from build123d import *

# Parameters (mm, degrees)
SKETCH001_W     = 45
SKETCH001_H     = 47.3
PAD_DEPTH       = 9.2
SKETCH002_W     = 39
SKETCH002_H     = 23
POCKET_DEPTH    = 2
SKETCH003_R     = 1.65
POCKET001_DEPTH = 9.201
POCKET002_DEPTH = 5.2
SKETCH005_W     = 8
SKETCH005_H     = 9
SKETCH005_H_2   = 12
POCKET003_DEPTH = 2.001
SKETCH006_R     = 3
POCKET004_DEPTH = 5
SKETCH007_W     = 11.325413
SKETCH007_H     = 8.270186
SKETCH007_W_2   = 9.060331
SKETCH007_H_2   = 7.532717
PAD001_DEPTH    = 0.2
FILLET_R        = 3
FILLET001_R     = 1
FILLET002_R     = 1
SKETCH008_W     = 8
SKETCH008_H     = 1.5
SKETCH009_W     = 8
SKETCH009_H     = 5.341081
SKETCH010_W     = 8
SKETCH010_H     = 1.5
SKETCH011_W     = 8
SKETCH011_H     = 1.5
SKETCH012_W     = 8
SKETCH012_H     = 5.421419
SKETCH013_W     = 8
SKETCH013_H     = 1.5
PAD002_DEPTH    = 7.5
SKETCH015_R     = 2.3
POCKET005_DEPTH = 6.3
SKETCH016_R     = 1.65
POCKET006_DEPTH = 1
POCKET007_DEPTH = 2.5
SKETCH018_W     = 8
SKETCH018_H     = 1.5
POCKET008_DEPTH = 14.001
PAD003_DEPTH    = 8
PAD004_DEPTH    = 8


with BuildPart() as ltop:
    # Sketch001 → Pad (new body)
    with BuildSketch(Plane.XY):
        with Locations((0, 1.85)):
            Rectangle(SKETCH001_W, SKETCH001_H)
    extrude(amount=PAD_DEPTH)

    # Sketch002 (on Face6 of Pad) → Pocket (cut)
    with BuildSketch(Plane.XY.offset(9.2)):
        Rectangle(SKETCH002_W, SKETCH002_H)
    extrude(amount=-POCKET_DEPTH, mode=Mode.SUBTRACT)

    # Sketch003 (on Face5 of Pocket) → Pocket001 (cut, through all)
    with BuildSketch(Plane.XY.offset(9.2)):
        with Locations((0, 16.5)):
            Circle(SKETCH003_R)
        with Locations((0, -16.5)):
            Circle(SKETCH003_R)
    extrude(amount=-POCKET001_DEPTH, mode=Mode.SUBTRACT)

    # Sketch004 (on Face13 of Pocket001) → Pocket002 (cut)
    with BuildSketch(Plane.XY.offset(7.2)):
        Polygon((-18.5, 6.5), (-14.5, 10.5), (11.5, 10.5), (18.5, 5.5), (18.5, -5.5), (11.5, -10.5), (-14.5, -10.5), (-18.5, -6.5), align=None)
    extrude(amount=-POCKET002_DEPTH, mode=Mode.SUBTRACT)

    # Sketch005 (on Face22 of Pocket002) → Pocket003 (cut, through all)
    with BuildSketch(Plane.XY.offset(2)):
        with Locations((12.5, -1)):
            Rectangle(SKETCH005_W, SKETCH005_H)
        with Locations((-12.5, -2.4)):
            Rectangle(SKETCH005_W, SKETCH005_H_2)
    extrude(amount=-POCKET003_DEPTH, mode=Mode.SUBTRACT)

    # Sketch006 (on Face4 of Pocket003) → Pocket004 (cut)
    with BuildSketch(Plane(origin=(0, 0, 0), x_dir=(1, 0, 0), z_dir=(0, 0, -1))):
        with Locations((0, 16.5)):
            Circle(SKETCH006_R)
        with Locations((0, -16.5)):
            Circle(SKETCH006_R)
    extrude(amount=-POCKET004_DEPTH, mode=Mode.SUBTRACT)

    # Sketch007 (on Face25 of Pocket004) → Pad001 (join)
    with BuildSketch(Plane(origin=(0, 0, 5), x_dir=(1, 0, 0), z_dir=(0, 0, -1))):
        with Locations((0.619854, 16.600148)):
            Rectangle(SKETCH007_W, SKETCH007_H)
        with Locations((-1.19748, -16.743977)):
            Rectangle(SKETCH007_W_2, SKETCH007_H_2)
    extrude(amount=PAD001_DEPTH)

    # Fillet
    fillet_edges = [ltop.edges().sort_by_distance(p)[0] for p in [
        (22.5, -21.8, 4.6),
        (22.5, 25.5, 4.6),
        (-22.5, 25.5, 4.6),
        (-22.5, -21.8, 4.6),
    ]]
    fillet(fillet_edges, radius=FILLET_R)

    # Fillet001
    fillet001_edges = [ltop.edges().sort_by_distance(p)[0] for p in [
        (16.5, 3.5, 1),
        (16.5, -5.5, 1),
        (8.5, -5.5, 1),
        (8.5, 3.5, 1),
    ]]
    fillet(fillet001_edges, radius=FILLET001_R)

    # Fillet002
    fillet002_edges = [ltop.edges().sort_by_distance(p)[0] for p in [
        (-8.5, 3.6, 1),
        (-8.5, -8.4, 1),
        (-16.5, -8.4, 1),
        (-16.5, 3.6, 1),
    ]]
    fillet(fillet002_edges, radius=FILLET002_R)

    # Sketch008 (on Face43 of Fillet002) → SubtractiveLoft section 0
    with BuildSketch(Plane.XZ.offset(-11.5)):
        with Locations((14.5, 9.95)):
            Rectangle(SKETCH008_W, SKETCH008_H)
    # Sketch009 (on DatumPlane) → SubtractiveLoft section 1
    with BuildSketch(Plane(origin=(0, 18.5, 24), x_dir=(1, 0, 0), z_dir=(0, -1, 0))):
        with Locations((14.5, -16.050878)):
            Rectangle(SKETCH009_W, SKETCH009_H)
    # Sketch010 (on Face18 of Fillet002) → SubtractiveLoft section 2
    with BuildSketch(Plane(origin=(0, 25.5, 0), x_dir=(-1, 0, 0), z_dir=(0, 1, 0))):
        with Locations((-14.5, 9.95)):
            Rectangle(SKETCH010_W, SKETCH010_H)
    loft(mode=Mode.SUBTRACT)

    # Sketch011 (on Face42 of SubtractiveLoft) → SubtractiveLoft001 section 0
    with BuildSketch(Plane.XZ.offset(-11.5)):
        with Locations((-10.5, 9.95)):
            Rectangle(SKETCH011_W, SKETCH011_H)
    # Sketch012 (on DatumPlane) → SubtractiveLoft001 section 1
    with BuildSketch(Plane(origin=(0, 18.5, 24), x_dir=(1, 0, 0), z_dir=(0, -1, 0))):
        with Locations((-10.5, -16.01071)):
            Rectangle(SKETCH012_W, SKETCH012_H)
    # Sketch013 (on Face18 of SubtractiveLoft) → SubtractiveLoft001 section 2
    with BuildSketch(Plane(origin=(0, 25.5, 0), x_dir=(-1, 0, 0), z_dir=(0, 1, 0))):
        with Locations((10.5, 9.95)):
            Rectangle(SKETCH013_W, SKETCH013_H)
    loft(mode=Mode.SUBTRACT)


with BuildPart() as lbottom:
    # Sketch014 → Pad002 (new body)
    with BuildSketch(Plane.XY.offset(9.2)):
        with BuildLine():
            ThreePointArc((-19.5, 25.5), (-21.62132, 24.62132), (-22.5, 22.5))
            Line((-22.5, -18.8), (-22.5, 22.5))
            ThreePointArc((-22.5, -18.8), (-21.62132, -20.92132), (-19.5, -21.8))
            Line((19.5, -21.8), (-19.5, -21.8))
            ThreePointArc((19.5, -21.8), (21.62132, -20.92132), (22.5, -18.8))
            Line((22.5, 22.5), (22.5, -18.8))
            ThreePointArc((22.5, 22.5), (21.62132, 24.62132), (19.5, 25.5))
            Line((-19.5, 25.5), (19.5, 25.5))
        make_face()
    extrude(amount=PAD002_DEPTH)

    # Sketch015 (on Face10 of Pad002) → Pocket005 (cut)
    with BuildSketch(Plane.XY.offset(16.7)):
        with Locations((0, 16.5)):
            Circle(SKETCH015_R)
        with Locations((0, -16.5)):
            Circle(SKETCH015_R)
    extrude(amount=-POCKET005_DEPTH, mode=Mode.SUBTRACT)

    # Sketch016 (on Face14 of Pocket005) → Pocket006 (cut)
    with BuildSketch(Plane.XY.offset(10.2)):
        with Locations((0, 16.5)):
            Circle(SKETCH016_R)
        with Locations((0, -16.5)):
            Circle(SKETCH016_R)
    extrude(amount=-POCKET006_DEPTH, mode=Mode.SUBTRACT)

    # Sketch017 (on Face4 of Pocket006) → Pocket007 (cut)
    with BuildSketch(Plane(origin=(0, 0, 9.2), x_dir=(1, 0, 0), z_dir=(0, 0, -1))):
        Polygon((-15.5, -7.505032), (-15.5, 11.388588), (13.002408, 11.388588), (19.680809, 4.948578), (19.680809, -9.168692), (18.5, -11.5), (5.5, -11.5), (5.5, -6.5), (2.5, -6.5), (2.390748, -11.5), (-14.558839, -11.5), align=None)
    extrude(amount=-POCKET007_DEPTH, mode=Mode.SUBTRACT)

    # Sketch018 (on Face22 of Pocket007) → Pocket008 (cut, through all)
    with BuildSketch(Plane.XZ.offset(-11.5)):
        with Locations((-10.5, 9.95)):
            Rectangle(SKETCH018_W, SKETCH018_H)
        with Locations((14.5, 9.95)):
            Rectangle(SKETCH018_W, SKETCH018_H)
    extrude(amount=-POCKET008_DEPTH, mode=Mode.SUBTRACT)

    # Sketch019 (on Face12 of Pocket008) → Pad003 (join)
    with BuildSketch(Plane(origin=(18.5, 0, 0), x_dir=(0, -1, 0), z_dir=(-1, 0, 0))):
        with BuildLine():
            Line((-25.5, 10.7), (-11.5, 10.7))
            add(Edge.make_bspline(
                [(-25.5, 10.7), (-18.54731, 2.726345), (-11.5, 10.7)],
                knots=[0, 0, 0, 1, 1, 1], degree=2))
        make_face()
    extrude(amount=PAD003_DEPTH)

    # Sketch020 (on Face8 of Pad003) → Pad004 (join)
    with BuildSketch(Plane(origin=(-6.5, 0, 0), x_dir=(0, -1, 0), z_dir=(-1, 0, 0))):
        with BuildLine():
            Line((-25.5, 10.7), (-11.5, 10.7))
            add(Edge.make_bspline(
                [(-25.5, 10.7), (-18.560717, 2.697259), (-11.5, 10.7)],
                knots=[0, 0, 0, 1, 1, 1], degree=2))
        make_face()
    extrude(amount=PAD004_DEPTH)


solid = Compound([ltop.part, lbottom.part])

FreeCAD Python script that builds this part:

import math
import FreeCAD as App
import Part
import Sketcher


def edges_at(feature, points):
    """Names of the edges that pass closest to the given points."""
    edges = feature.Shape.Edges
    near = lambda p: min(range(len(edges)), key=lambda i: edges[i].distToShape(Part.Vertex(*p))[0])
    return sorted({f"Edge{near(p) + 1}" for p in points})


def add_polygon(sketch, points):
    """Adds a closed chain of lines whose ends are joined by coincident constraints."""
    first, n = sketch.GeometryCount, len(points)
    for a, b in zip(points, points[1:] + points[:1]):
        sketch.addGeometry(Part.LineSegment(App.Vector(*a, 0), App.Vector(*b, 0)), False)
    for i in range(n):
        sketch.addConstraint(Sketcher.Constraint("Coincident", first + i, 2, first + (i + 1) % n, 1))

doc = App.newDocument("Part")
params = doc.addObject("Spreadsheet::Sheet", "Params")
for row, (alias, value) in enumerate([
    ("sketch1_width", "45 mm"),
    ("sketch1_height", "47.3 mm"),
    ("pad1_length", "9.2 mm"),
    ("sketch2_width", "39 mm"),
    ("sketch2_height", "23 mm"),
    ("pocket1_length", "2 mm"),
    ("sketch3_diameter", "3.3 mm"),
    ("sketch4_width", "26 mm"),
    ("sketch4_height", "13 mm"),
    ("sketch4_height2", "11 mm"),
    ("pocket3_length", "5.2 mm"),
    ("sketch5_width", "8 mm"),
    ("sketch5_height", "9 mm"),
    ("sketch5_height2", "12 mm"),
    ("sketch6_diameter", "6 mm"),
    ("pocket5_length", "5 mm"),
    ("pad2_length", "0.2 mm"),
    ("fillet_radius", "3 mm"),
    ("fillet2_radius", "1 mm"),
    ("fillet3_radius", "1 mm"),
    ("sketch8_width", "8 mm"),
    ("sketch8_height", "1.5 mm"),
    ("sketch9_width", "8 mm"),
    ("sketch10_width", "8 mm"),
    ("sketch10_height", "1.5 mm"),
    ("sketch11_width", "8 mm"),
    ("sketch11_height", "1.5 mm"),
    ("sketch12_width", "8 mm"),
    ("sketch13_width", "8 mm"),
    ("sketch13_height", "1.5 mm"),
    ("sketch14_radius", "3.000001 mm"),
    ("sketch14_width", "39 mm"),
    ("sketch14_height", "41.3 mm"),
    ("pad3_length", "7.5 mm"),
    ("sketch15_diameter", "4.6 mm"),
    ("pocket6_length", "6.3 mm"),
    ("sketch16_diameter", "3.3 mm"),
    ("pocket7_length", "1 mm"),
    ("sketch17_width", "3 mm"),
    ("sketch17_width2", "13 mm"),
    ("sketch17_height", "5 mm"),
    ("pocket8_length", "2.5 mm"),
    ("sketch18_width", "8 mm"),
    ("sketch18_height", "1.5 mm"),
    ("pad4_length", "8 mm"),
    ("pad5_length", "8 mm"),
], start=1):
    params.set(f"A{row}", alias)
    params.set(f"B{row}", "=" + value)
    params.setAlias(f"B{row}", alias)

body = doc.addObject("PartDesign::Body", "Body")

sketch1 = body.newObject("Sketcher::SketchObject", "Sketch")
sketch1.AttachmentSupport = (doc.getObject("XY_Plane"), [""])
sketch1.MapMode = "FlatFace"
add_polygon(sketch1, [(-22, 26), (-22, -22), (22, -22), (22, 26)])
sketch1.addConstraint([
    Sketcher.Constraint("Vertical", 0),
    Sketcher.Constraint("Horizontal", 1),
    Sketcher.Constraint("Vertical", 2),
    Sketcher.Constraint("Horizontal", 3),
    Sketcher.Constraint("DistanceX", 1, 1, 1, 2, 45.0),
    Sketcher.Constraint("DistanceY", 0, 2, 0, 1, 47.3),
    Sketcher.Constraint("DistanceX", 0, 2, -1, 1, 22.5),
    Sketcher.Constraint("DistanceY", 0, 2, -1, 1, 21.8),
])
sketch1.setExpression("Constraints[8]", "Params.sketch1_width")
sketch1.setExpression("Constraints[9]", "Params.sketch1_height")
pad1 = body.newObject("PartDesign::Pad", "Pad")
pad1.Profile = sketch1
pad1.setExpression("Length", "Params.pad1_length")

sketch2 = body.newObject("Sketcher::SketchObject", "Sketch001")
sketch2.AttachmentSupport = (doc.getObject("XY_Plane"), [""])
sketch2.MapMode = "FlatFace"
sketch2.AttachmentOffset = App.Placement(App.Vector(0, 0, 9.2), App.Rotation())
add_polygon(sketch2, [(-20, 12), (-20, -12), (20, -12), (20, 12)])
sketch2.addConstraint([
    Sketcher.Constraint("Vertical", 0),
    Sketcher.Constraint("Horizontal", 1),
    Sketcher.Constraint("Vertical", 2),
    Sketcher.Constraint("Horizontal", 3),
    Sketcher.Constraint("Symmetric", 0, 2, 2, 2, -1, 1),
    Sketcher.Constraint("DistanceX", 1, 1, 1, 2, 39.0),
    Sketcher.Constraint("DistanceY", 0, 2, 0, 1, 23.0),
])
sketch2.setExpression("Constraints[9]", "Params.sketch2_width")
sketch2.setExpression("Constraints[10]", "Params.sketch2_height")
pocket1 = body.newObject("PartDesign::Pocket", "Pocket")
pocket1.Profile = sketch2
pocket1.setExpression("Length", "Params.pocket1_length")

sketch3 = body.newObject("Sketcher::SketchObject", "Sketch002")
sketch3.AttachmentSupport = (doc.getObject("XY_Plane"), [""])
sketch3.MapMode = "FlatFace"
sketch3.AttachmentOffset = App.Placement(App.Vector(0, 0, 9.2), App.Rotation())
sketch3.addGeometry([
    Part.Circle(App.Vector(0, 16.5, 0), App.Vector(0, 0, 1), 1.6),
    Part.Circle(App.Vector(0, -16.5, 0), App.Vector(0, 0, 1), 1.6),
], False)
sketch3.addConstraint([
    Sketcher.Constraint("Equal", 0, 1),
    Sketcher.Constraint("Symmetric", 0, 3, 1, 3, -1, 1),
    Sketcher.Constraint("PointOnObject", 0, 3, -2),
    Sketcher.Constraint("Diameter", 0, 3.3),
    Sketcher.Constraint("DistanceY", 1, 3, 0, 3, 33.0),
])
sketch3.setExpression("Constraints[3]", "Params.sketch3_diameter")
pocket2 = body.newObject("PartDesign::Pocket", "Pocket001")
pocket2.Profile = sketch3
pocket2.Type = "ThroughAll"

sketch4 = body.newObject("Sketcher::SketchObject", "Sketch003")
sketch4.AttachmentSupport = (doc.getObject("XY_Plane"), [""])
sketch4.MapMode = "FlatFace"
sketch4.AttachmentOffset = App.Placement(App.Vector(0, 0, 7.2), App.Rotation())
add_polygon(sketch4, [(-14, 10), (-18, 6), (-18, -6), (-14, -10), (12, -10), (18, -6), (18, 6), (12, 10)])
sketch4.addConstraint([
    Sketcher.Constraint("Vertical", 1),
    Sketcher.Constraint("Horizontal", 3),
    Sketcher.Constraint("Vertical", 5),
    Sketcher.Constraint("Horizontal", 7),
    Sketcher.Constraint("Symmetric", 3, 2, 6, 2, -1),
    Sketcher.Constraint("Perpendicular", 0, 2),
    Sketcher.Constraint("Vertical", 2, 2, 7, 2),
    Sketcher.Constraint("Equal", 0, 2),
    Sketcher.Constraint("Equal", 4, 6),
    Sketcher.Constraint("DistanceX", 3, 1, 3, 2, 26.0),
    Sketcher.Constraint("DistanceY", 1, 2, 1, 1, 13.0),
    Sketcher.Constraint("DistanceY", 5, 1, 5, 2, 11.0),
    Sketcher.Constraint("DistanceX", 1, 2, 2, 2, 4.0),
    Sketcher.Constraint("DistanceX", 3, 2, 4, 2, 7.0),
    Sketcher.Constraint("DistanceX", 0, 2, -1, 1, 18.5),
])
sketch4.setExpression("Constraints[17]", "Params.sketch4_width")
sketch4.setExpression("Constraints[18]", "Params.sketch4_height")
sketch4.setExpression("Constraints[19]", "Params.sketch4_height2")
pocket3 = body.newObject("PartDesign::Pocket", "Pocket002")
pocket3.Profile = sketch4
pocket3.setExpression("Length", "Params.pocket3_length")

sketch5 = body.newObject("Sketcher::SketchObject", "Sketch004")
sketch5.AttachmentSupport = (doc.getObject("XY_Plane"), [""])
sketch5.MapMode = "FlatFace"
sketch5.AttachmentOffset = App.Placement(App.Vector(0, 0, 2), App.Rotation())
add_polygon(sketch5, [(8, 4), (8, -6), (16, -6), (16, 4)])
add_polygon(sketch5, [(-16, 4), (-16, -8), (-8, -8), (-8, 4)])
sketch5.addConstraint([
    Sketcher.Constraint("Vertical", 0),
    Sketcher.Constraint("Horizontal", 1),
    Sketcher.Constraint("Vertical", 2),
    Sketcher.Constraint("Horizontal", 3),
    Sketcher.Constraint("Vertical", 4),
    Sketcher.Constraint("Horizontal", 5),
    Sketcher.Constraint("Vertical", 6),
    Sketcher.Constraint("Horizontal", 7),
    Sketcher.Constraint("Equal", 3, 5),
    Sketcher.Constraint("DistanceX", 1, 1, 1, 2, 8.0),
    Sketcher.Constraint("DistanceY", 0, 2, 0, 1, 9.0),
    Sketcher.Constraint("DistanceY", 4, 2, 4, 1, 12.0),
    Sketcher.Constraint("DistanceX", 4, 2, 0, 2, 25.0),
    Sketcher.Constraint("DistanceX", -1, 1, 0, 2, 8.5),
    Sketcher.Constraint("DistanceY", 0, 2, -1, 1, 5.5),
    Sketcher.Constraint("DistanceY", 4, 2, -1, 1, 8.4),
])
sketch5.setExpression("Constraints[17]", "Params.sketch5_width")
sketch5.setExpression("Constraints[18]", "Params.sketch5_height")
sketch5.setExpression("Constraints[19]", "Params.sketch5_height2")
pocket4 = body.newObject("PartDesign::Pocket", "Pocket003")
pocket4.Profile = sketch5
pocket4.Type = "ThroughAll"

sketch6 = body.newObject("Sketcher::SketchObject", "Sketch005")
sketch6.AttachmentSupport = (doc.getObject("XY_Plane"), [""])
sketch6.MapMode = "FlatFace"
sketch6.addGeometry([
    Part.Circle(App.Vector(0, -16.5, 0), App.Vector(0, 0, 1), 3),
    Part.Circle(App.Vector(0, 16.5, 0), App.Vector(0, 0, 1), 3),
], False)
sketch6.addConstraint([
    Sketcher.Constraint("Equal", 0, 1),
    Sketcher.Constraint("Symmetric", 0, 3, 1, 3, -1, 1),
    Sketcher.Constraint("PointOnObject", 0, 3, -2),
    Sketcher.Constraint("Diameter", 0, 6.0),
    Sketcher.Constraint("DistanceY", 0, 3, 1, 3, 33.0),
])
sketch6.setExpression("Constraints[3]", "Params.sketch6_diameter")
pocket5 = body.newObject("PartDesign::Pocket", "Pocket004")
pocket5.Profile = sketch6
pocket5.setExpression("Length", "Params.pocket5_length")
pocket5.Reversed = True

sketch7 = body.newObject("Sketcher::SketchObject", "Sketch006")
sketch7.AttachmentSupport = (doc.getObject("XY_Plane"), [""])
sketch7.MapMode = "FlatFace"
sketch7.AttachmentOffset = App.Placement(App.Vector(0, 0, 5), App.Rotation())
add_polygon(sketch7, [(-5, -21), (-5, -12), (6, -12), (6, -21)])
add_polygon(sketch7, [(-6, 13), (-6, 21), (3, 21), (3, 13)])
sketch7.addConstraint([
    Sketcher.Constraint("Vertical", 0),
    Sketcher.Constraint("Horizontal", 1),
    Sketcher.Constraint("Vertical", 2),
    Sketcher.Constraint("Horizontal", 3),
    Sketcher.Constraint("Vertical", 4),
    Sketcher.Constraint("Horizontal", 5),
    Sketcher.Constraint("Vertical", 6),
    Sketcher.Constraint("Horizontal", 7),
    Sketcher.Constraint("DistanceX", 5, 1, 5, 2, 9.060331),
    Sketcher.Constraint("DistanceX", 1, 1, 1, 2, 11.325413),
    Sketcher.Constraint("DistanceY", 0, 1, 0, 2, 8.270186),
    Sketcher.Constraint("DistanceY", 4, 1, 4, 2, 7.532717),
    Sketcher.Constraint("DistanceX", -1, 1, 1, 2, 6.28256),
    Sketcher.Constraint("DistanceY", 2, 2, -1, 1, 20.735241),
    Sketcher.Constraint("DistanceY", -1, 1, 6, 2, 12.977619),
    Sketcher.Constraint("DistanceX", 4, 2, -1, 1, 5.727646),
])
pad2 = body.newObject("PartDesign::Pad", "Pad001")
pad2.Profile = sketch7
pad2.setExpression("Length", "Params.pad2_length")
pad2.Reversed = True
doc.recompute()

fillet = body.newObject("PartDesign::Fillet", "Fillet")
fillet.Base = (pad2, edges_at(pad2, [
    (22.5, -21.8, 4.6),
    (22.5, 25.5, 4.6),
    (-22.5, 25.5, 4.6),
    (-22.5, -21.8, 4.6),
]))
fillet.setExpression("Radius", "Params.fillet_radius")
doc.recompute()

fillet2 = body.newObject("PartDesign::Fillet", "Fillet001")
fillet2.Base = (fillet, edges_at(fillet, [
    (16.5, 3.5, 1),
    (16.5, -5.5, 1),
    (8.5, -5.5, 1),
    (8.5, 3.5, 1),
]))
fillet2.setExpression("Radius", "Params.fillet2_radius")
doc.recompute()

fillet3 = body.newObject("PartDesign::Fillet", "Fillet002")
fillet3.Base = (fillet2, edges_at(fillet2, [
    (-8.5, 3.6, 1),
    (-8.5, -8.4, 1),
    (-16.5, -8.4, 1),
    (-16.5, 3.6, 1),
]))
fillet3.setExpression("Radius", "Params.fillet3_radius")

sketch8 = body.newObject("Sketcher::SketchObject", "Sketch007")
sketch8.AttachmentSupport = (doc.getObject("XZ_Plane"), [""])
sketch8.MapMode = "FlatFace"
sketch8.AttachmentOffset = App.Placement(App.Vector(0, 0, -11.5), App.Rotation())
add_polygon(sketch8, [(10.5, 10.7), (10.5, 9.2), (18.5, 9.2), (18.5, 10.7)])
sketch8.addConstraint([
    Sketcher.Constraint("Vertical", 0),
    Sketcher.Constraint("Horizontal", 1),
    Sketcher.Constraint("Vertical", 2),
    Sketcher.Constraint("Horizontal", 3),
    Sketcher.Constraint("DistanceX", 1, 1, 1, 2, 8.0),
    Sketcher.Constraint("DistanceY", 0, 2, 0, 1, 1.5),
    Sketcher.Constraint("DistanceX", -1, 1, 0, 2, 10.5),
    Sketcher.Constraint("DistanceY", -1, 1, 0, 2, 9.2),
])
sketch8.setExpression("Constraints[8]", "Params.sketch8_width")
sketch8.setExpression("Constraints[9]", "Params.sketch8_height")

sketch9 = body.newObject("Sketcher::SketchObject", "Sketch008")
sketch9.AttachmentSupport = (doc.getObject("XZ_Plane"), [""])
sketch9.MapMode = "FlatFace"
sketch9.AttachmentOffset = App.Placement(App.Vector(0, 0, -18.5), App.Rotation())
add_polygon(sketch9, [(10, 11), (10, 5), (18, 5), (18, 11)])
sketch9.addConstraint([
    Sketcher.Constraint("Vertical", 0),
    Sketcher.Constraint("Horizontal", 1),
    Sketcher.Constraint("Vertical", 2),
    Sketcher.Constraint("Horizontal", 3),
    Sketcher.Constraint("DistanceX", 1, 1, 1, 2, 8.0),
    Sketcher.Constraint("DistanceX", -1, 1, 0, 2, 10.5),
    Sketcher.Constraint("DistanceY", 0, 2, 0, 1, 5.341081),
    Sketcher.Constraint("DistanceY", -1, 1, 0, 2, 5.278581),
])
sketch9.setExpression("Constraints[8]", "Params.sketch9_width")

sketch10 = body.newObject("Sketcher::SketchObject", "Sketch009")
sketch10.AttachmentSupport = (doc.getObject("XZ_Plane"), [""])
sketch10.MapMode = "FlatFace"
sketch10.AttachmentOffset = App.Placement(App.Vector(0, 0, -25.5), App.Rotation())
add_polygon(sketch10, [(18.5, 10.7), (18.5, 9.2), (10.5, 9.2), (10.5, 10.7)])
sketch10.addConstraint([
    Sketcher.Constraint("Vertical", 0),
    Sketcher.Constraint("Horizontal", 1),
    Sketcher.Constraint("Vertical", 2),
    Sketcher.Constraint("Horizontal", 3),
    Sketcher.Constraint("DistanceX", 1, 2, 1, 1, 8.0),
    Sketcher.Constraint("DistanceY", 0, 2, 0, 1, 1.5),
    Sketcher.Constraint("DistanceX", -1, 1, 0, 2, 18.5),
    Sketcher.Constraint("DistanceY", -1, 1, 0, 2, 9.2),
])
sketch10.setExpression("Constraints[8]", "Params.sketch10_width")
sketch10.setExpression("Constraints[9]", "Params.sketch10_height")

subtractiveloft = body.newObject("PartDesign::SubtractiveLoft", "SubtractiveLoft")
subtractiveloft.Profile = sketch8
subtractiveloft.Sections = [sketch9, sketch10]

sketch11 = body.newObject("Sketcher::SketchObject", "Sketch010")
sketch11.AttachmentSupport = (doc.getObject("XZ_Plane"), [""])
sketch11.MapMode = "FlatFace"
sketch11.AttachmentOffset = App.Placement(App.Vector(0, 0, -11.5), App.Rotation())
add_polygon(sketch11, [(-14.5, 10.7), (-14.5, 9.2), (-6.5, 9.2), (-6.5, 10.7)])
sketch11.addConstraint([
    Sketcher.Constraint("Vertical", 0),
    Sketcher.Constraint("Horizontal", 1),
    Sketcher.Constraint("Vertical", 2),
    Sketcher.Constraint("Horizontal", 3),
    Sketcher.Constraint("DistanceX", 1, 1, 1, 2, 8.0),
    Sketcher.Constraint("DistanceY", 0, 2, 0, 1, 1.5),
    Sketcher.Constraint("DistanceX", 0, 2, -1, 1, 14.5),
    Sketcher.Constraint("DistanceY", -1, 1, 0, 2, 9.2),
])
sketch11.setExpression("Constraints[8]", "Params.sketch11_width")
sketch11.setExpression("Constraints[9]", "Params.sketch11_height")

sketch12 = body.newObject("Sketcher::SketchObject", "Sketch011")
sketch12.AttachmentSupport = (doc.getObject("XZ_Plane"), [""])
sketch12.MapMode = "FlatFace"
sketch12.AttachmentOffset = App.Placement(App.Vector(0, 0, -18.5), App.Rotation())
add_polygon(sketch12, [(-14, 11), (-14, 5), (-6, 5), (-6, 11)])
sketch12.addConstraint([
    Sketcher.Constraint("Vertical", 0),
    Sketcher.Constraint("Horizontal", 1),
    Sketcher.Constraint("Vertical", 2),
    Sketcher.Constraint("Horizontal", 3),
    Sketcher.Constraint("DistanceX", 1, 1, 1, 2, 8.0),
    Sketcher.Constraint("DistanceX", 0, 2, -1, 1, 14.5),
    Sketcher.Constraint("DistanceY", -1, 1, 2, 2, 10.7),
    Sketcher.Constraint("DistanceY", 0, 2, 0, 1, 5.421419),
])
sketch12.setExpression("Constraints[8]", "Params.sketch12_width")

sketch13 = body.newObject("Sketcher::SketchObject", "Sketch012")
sketch13.AttachmentSupport = (doc.getObject("XZ_Plane"), [""])
sketch13.MapMode = "FlatFace"
sketch13.AttachmentOffset = App.Placement(App.Vector(0, 0, -25.5), App.Rotation())
add_polygon(sketch13, [(-6.5, 10.7), (-6.5, 9.2), (-14.5, 9.2), (-14.5, 10.7)])
sketch13.addConstraint([
    Sketcher.Constraint("Vertical", 0),
    Sketcher.Constraint("Horizontal", 1),
    Sketcher.Constraint("Vertical", 2),
    Sketcher.Constraint("Horizontal", 3),
    Sketcher.Constraint("DistanceX", 1, 2, 1, 1, 8.0),
    Sketcher.Constraint("DistanceY", 0, 2, 0, 1, 1.5),
    Sketcher.Constraint("DistanceX", 0, 2, -1, 1, 6.5),
    Sketcher.Constraint("DistanceY", -1, 1, 0, 2, 9.2),
])
sketch13.setExpression("Constraints[8]", "Params.sketch13_width")
sketch13.setExpression("Constraints[9]", "Params.sketch13_height")

subtractiveloft2 = body.newObject("PartDesign::SubtractiveLoft", "SubtractiveLoft001")
subtractiveloft2.Profile = sketch11
subtractiveloft2.Sections = [sketch12, sketch13]
body2 = doc.addObject("PartDesign::Body", "Body001")

sketch14 = body2.newObject("Sketcher::SketchObject", "Sketch013")
sketch14.AttachmentSupport = (doc.getObject("XY_Plane001"), [""])
sketch14.MapMode = "FlatFace"
sketch14.AttachmentOffset = App.Placement(App.Vector(0, 0, 9.2), App.Rotation())
sketch14.addGeometry([
    Part.ArcOfCircle(Part.Circle(App.Vector(-19.5, 22.5, 0), App.Vector(0, 0, 1), 3), math.radians(90), math.radians(180)),
    Part.LineSegment(App.Vector(-22.5, 22.5, 0), App.Vector(-22.5, -18.8, 0)),
    Part.ArcOfCircle(Part.Circle(App.Vector(-19.5, -18.8, 0), App.Vector(0, 0, 1), 3), math.radians(-180), math.radians(-90)),
    Part.LineSegment(App.Vector(-19.5, -21.8, 0), App.Vector(19.5, -21.8, 0)),
    Part.ArcOfCircle(Part.Circle(App.Vector(19.5, -18.8, 0), App.Vector(0, 0, 1), 3), math.radians(-90), math.radians(0)),
    Part.LineSegment(App.Vector(22.5, -18.8, 0), App.Vector(22.5, 22.5, 0)),
    Part.ArcOfCircle(Part.Circle(App.Vector(19.5, 22.5, 0), App.Vector(0, 0, 1), 3), math.radians(0), math.radians(90)),
    Part.LineSegment(App.Vector(19.5, 25.5, 0), App.Vector(-19.5, 25.5, 0)),
], False)
sketch14.addConstraint([
    Sketcher.Constraint("Tangent", 0, 2, 1, 1),
    Sketcher.Constraint("Tangent", 1, 2, 2, 1),
    Sketcher.Constraint("Tangent", 2, 2, 3, 1),
    Sketcher.Constraint("Tangent", 3, 2, 4, 1),
    Sketcher.Constraint("Tangent", 4, 2, 5, 1),
    Sketcher.Constraint("Tangent", 5, 2, 6, 1),
    Sketcher.Constraint("Tangent", 6, 2, 7, 1),
    Sketcher.Constraint("Tangent", 7, 2, 0, 1),
    Sketcher.Constraint("Vertical", 1),
    Sketcher.Constraint("Horizontal", 3),
    Sketcher.Constraint("Vertical", 5),
    Sketcher.Constraint("Horizontal", 7),
    Sketcher.Constraint("Equal", 0, 2),
    Sketcher.Constraint("Equal", 2, 4),
    Sketcher.Constraint("Equal", 4, 6),
    Sketcher.Constraint("Radius", 0, 3.000001),
    Sketcher.Constraint("DistanceX", 3, 1, 3, 2, 39.0),
    Sketcher.Constraint("DistanceY", 1, 2, 1, 1, 41.3),
    Sketcher.Constraint("DistanceX", 0, 3, -1, 1, 19.499999),
    Sketcher.Constraint("DistanceY", -1, 1, 0, 3, 22.499999),
])
sketch14.setExpression("Constraints[15]", "Params.sketch14_radius")
sketch14.setExpression("Constraints[16]", "Params.sketch14_width")
sketch14.setExpression("Constraints[17]", "Params.sketch14_height")
pad3 = body2.newObject("PartDesign::Pad", "Pad002")
pad3.Profile = sketch14
pad3.setExpression("Length", "Params.pad3_length")

sketch15 = body2.newObject("Sketcher::SketchObject", "Sketch014")
sketch15.AttachmentSupport = (doc.getObject("XY_Plane001"), [""])
sketch15.MapMode = "FlatFace"
sketch15.AttachmentOffset = App.Placement(App.Vector(0, 0, 16.7), App.Rotation())
sketch15.addGeometry([
    Part.Circle(App.Vector(0, 16.5, 0), App.Vector(0, 0, 1), 2.3),
    Part.Circle(App.Vector(0, -16.5, 0), App.Vector(0, 0, 1), 2.3),
], False)
sketch15.addConstraint([
    Sketcher.Constraint("Equal", 0, 1),
    Sketcher.Constraint("Symmetric", 0, 3, 1, 3, -1, 1),
    Sketcher.Constraint("PointOnObject", 0, 3, -2),
    Sketcher.Constraint("Diameter", 0, 4.6),
    Sketcher.Constraint("DistanceY", 1, 3, 0, 3, 33.0),
])
sketch15.setExpression("Constraints[3]", "Params.sketch15_diameter")
pocket6 = body2.newObject("PartDesign::Pocket", "Pocket005")
pocket6.Profile = sketch15
pocket6.setExpression("Length", "Params.pocket6_length")

sketch16 = body2.newObject("Sketcher::SketchObject", "Sketch015")
sketch16.AttachmentSupport = (doc.getObject("XY_Plane001"), [""])
sketch16.MapMode = "FlatFace"
sketch16.AttachmentOffset = App.Placement(App.Vector(0, 0, 10.2), App.Rotation())
sketch16.addGeometry([
    Part.Circle(App.Vector(0, 16.5, 0), App.Vector(0, 0, 1), 1.6),
    Part.Circle(App.Vector(0, -16.5, 0), App.Vector(0, 0, 1), 1.6),
], False)
sketch16.addConstraint([
    Sketcher.Constraint("Equal", 0, 1),
    Sketcher.Constraint("Symmetric", 0, 3, 1, 3, -1, 1),
    Sketcher.Constraint("PointOnObject", 0, 3, -2),
    Sketcher.Constraint("Diameter", 0, 3.3),
    Sketcher.Constraint("DistanceY", 1, 3, 0, 3, 33.0),
])
sketch16.setExpression("Constraints[3]", "Params.sketch16_diameter")
pocket7 = body2.newObject("PartDesign::Pocket", "Pocket006")
pocket7.Profile = sketch16
pocket7.setExpression("Length", "Params.pocket7_length")

sketch17 = body2.newObject("Sketcher::SketchObject", "Sketch016")
sketch17.AttachmentSupport = (doc.getObject("XY_Plane001"), [""])
sketch17.MapMode = "FlatFace"
sketch17.AttachmentOffset = App.Placement(App.Vector(0, 0, 9.2), App.Rotation())
add_polygon(sketch17, [(-15.5, -11.4), (-15.5, 7.5), (-14.6, 11.5), (2.4, 11.5), (2.5, 6.5), (5.5, 6.5), (5.5, 11.5), (18.5, 11.5), (19.7, 9.2), (19.7, -4.9), (13, -11.4)])
sketch17.addConstraint([
    Sketcher.Constraint("Vertical", 0),
    Sketcher.Constraint("Horizontal", 2),
    Sketcher.Constraint("Horizontal", 4),
    Sketcher.Constraint("Vertical", 5),
    Sketcher.Constraint("Horizontal", 6),
    Sketcher.Constraint("Vertical", 8),
    Sketcher.Constraint("Horizontal", 10),
    Sketcher.Constraint("Horizontal", 2, 2, 5, 2),
    Sketcher.Constraint("DistanceX", 4, 1, 4, 2, 3.0),
    Sketcher.Constraint("DistanceX", 6, 1, 6, 2, 13.0),
    Sketcher.Constraint("DistanceY", 5, 1, 5, 2, 5.0),
    Sketcher.Constraint("DistanceX", 0, 2, 3, 2, 18.0),
    Sketcher.Constraint("DistanceX", 0, 2, -1, 1, 15.5),
    Sketcher.Constraint("DistanceY", -1, 1, 1, 2, 11.5),
    Sketcher.Constraint("DistanceX", 10, 2, 10, 1, 28.502408),
    Sketcher.Constraint("DistanceY", 0, 1, 0, 2, 18.89362),
    Sketcher.Constraint("DistanceY", 8, 2, 8, 1, 14.11727),
    Sketcher.Constraint("DistanceX", 9, 2, 8, 2, 6.678401),
    Sketcher.Constraint("Distance", 9, 9.277649),
    Sketcher.Constraint("DistanceX", 2, 1, 2, 2, 16.949587),
    Sketcher.Constraint("DistanceX", 1, 2, -1, 1, 14.558839),
    Sketcher.Constraint("DistanceY", 8, 2, -1, 1, 4.948578),
])
sketch17.setExpression("Constraints[19]", "Params.sketch17_width")
sketch17.setExpression("Constraints[20]", "Params.sketch17_width2")
sketch17.setExpression("Constraints[21]", "Params.sketch17_height")
pocket8 = body2.newObject("PartDesign::Pocket", "Pocket007")
pocket8.Profile = sketch17
pocket8.setExpression("Length", "Params.pocket8_length")
pocket8.Reversed = True

sketch18 = body2.newObject("Sketcher::SketchObject", "Sketch017")
sketch18.AttachmentSupport = (doc.getObject("XZ_Plane001"), [""])
sketch18.MapMode = "FlatFace"
sketch18.AttachmentOffset = App.Placement(App.Vector(0, 0, -11.5), App.Rotation())
add_polygon(sketch18, [(-14.5, 10.7), (-14.5, 9.2), (-6.5, 9.2), (-6.5, 10.7)])
add_polygon(sketch18, [(10.5, 10.7), (10.5, 9.2), (18.5, 9.2), (18.5, 10.7)])
sketch18.addConstraint([
    Sketcher.Constraint("Vertical", 0),
    Sketcher.Constraint("Horizontal", 1),
    Sketcher.Constraint("Vertical", 2),
    Sketcher.Constraint("Horizontal", 3),
    Sketcher.Constraint("Vertical", 4),
    Sketcher.Constraint("Horizontal", 5),
    Sketcher.Constraint("Vertical", 6),
    Sketcher.Constraint("Horizontal", 7),
    Sketcher.Constraint("Horizontal", 1, 2, 4, 2),
    Sketcher.Constraint("Horizontal", 3, 2, 6, 2),
    Sketcher.Constraint("Equal", 3, 5),
    Sketcher.Constraint("DistanceX", 1, 1, 1, 2, 8.0),
    Sketcher.Constraint("DistanceY", 0, 2, 0, 1, 1.5),
    Sketcher.Constraint("DistanceX", 1, 2, 4, 2, 17.0),
    Sketcher.Constraint("DistanceX", 0, 2, -1, 1, 14.5),
    Sketcher.Constraint("DistanceY", -1, 1, 0, 2, 9.2),
])
sketch18.setExpression("Constraints[19]", "Params.sketch18_width")
sketch18.setExpression("Constraints[20]", "Params.sketch18_height")
pocket9 = body2.newObject("PartDesign::Pocket", "Pocket008")
pocket9.Profile = sketch18
pocket9.Type = "ThroughAll"

sketch19 = body2.newObject("Sketcher::SketchObject", "Sketch018")
sketch19.AttachmentSupport = (doc.getObject("YZ_Plane001"), [""])
sketch19.MapMode = "FlatFace"
sketch19.AttachmentOffset = App.Placement(App.Vector(0, 0, 18.5), App.Rotation())
sketch19.addGeometry([
    Part.LineSegment(App.Vector(11.5, 10.7, 0), App.Vector(25.5, 10.7, 0)),
    Part.BSplineCurve([App.Vector(25.5, 10.7, 0), App.Vector(18.54731, 2.726345, 0), App.Vector(11.5, 10.7, 0)], [3, 3], [0, 1], False, 2, [1, 1, 1], False),
], False)
sketch19.addConstraint([
    Sketcher.Constraint("Block", 1),
    Sketcher.Constraint("Coincident", 0, 1, 1, 2),
    Sketcher.Constraint("Coincident", 1, 1, 0, 2),
])
pad4 = body2.newObject("PartDesign::Pad", "Pad003")
pad4.Profile = sketch19
pad4.setExpression("Length", "Params.pad4_length")
pad4.Reversed = True

sketch20 = body2.newObject("Sketcher::SketchObject", "Sketch019")
sketch20.AttachmentSupport = (doc.getObject("YZ_Plane001"), [""])
sketch20.MapMode = "FlatFace"
sketch20.AttachmentOffset = App.Placement(App.Vector(0, 0, -6.5), App.Rotation())
sketch20.addGeometry([
    Part.LineSegment(App.Vector(11.5, 10.7, 0), App.Vector(25.5, 10.7, 0)),
    Part.BSplineCurve([App.Vector(25.5, 10.7, 0), App.Vector(18.560717, 2.697259, 0), App.Vector(11.5, 10.7, 0)], [3, 3], [0, 1], False, 2, [1, 1, 1], False),
], False)
sketch20.addConstraint([
    Sketcher.Constraint("Block", 1),
    Sketcher.Constraint("Coincident", 0, 1, 1, 2),
    Sketcher.Constraint("Coincident", 1, 1, 0, 2),
])
pad5 = body2.newObject("PartDesign::Pad", "Pad004")
pad5.Profile = sketch20
pad5.setExpression("Length", "Params.pad5_length")
pad5.Reversed = True

doc.recompute()
